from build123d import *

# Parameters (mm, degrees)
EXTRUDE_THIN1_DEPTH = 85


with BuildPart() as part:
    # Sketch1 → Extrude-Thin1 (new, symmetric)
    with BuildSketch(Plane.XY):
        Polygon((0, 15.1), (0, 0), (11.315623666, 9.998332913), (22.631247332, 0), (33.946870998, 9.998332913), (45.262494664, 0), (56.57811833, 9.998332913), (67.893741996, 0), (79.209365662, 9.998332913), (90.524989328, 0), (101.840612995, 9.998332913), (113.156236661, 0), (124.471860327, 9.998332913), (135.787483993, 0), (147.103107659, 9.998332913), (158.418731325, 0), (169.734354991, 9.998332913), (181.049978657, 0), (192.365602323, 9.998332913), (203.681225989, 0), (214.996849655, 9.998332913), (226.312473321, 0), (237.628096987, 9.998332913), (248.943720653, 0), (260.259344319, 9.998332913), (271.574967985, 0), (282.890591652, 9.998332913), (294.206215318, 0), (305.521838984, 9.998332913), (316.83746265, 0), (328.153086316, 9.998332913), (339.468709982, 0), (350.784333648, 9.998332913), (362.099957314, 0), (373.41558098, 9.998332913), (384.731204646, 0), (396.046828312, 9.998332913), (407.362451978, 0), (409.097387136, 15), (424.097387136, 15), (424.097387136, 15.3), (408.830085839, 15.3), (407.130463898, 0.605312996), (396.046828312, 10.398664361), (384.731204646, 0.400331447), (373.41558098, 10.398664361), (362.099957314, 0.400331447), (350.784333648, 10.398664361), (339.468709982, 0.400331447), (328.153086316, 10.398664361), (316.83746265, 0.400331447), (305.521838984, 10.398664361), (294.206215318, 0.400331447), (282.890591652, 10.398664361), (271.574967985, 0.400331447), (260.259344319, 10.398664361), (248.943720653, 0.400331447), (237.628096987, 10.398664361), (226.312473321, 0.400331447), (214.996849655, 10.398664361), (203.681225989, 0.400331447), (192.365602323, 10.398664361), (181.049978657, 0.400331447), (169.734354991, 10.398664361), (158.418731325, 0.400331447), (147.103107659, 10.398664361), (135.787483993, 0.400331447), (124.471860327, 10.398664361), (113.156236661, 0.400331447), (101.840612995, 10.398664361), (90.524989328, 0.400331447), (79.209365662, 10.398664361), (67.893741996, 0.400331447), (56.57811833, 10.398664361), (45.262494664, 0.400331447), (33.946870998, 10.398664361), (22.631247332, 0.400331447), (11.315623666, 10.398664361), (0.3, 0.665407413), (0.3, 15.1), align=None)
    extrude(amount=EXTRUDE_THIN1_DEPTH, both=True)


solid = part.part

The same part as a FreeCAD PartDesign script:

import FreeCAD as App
import Part
import Sketcher


def add_polygon(sketch, points):
    """Adds a closed chain of lines whose ends are joined by coincident constraints."""
    first, n = sketch.GeometryCount, len(points)
    for a, b in zip(points, points[1:] + points[:1]):
        sketch.addGeometry(Part.LineSegment(App.Vector(*a, 0), App.Vector(*b, 0)), False)
    for i in range(n):
        sketch.addConstraint(Sketcher.Constraint("Coincident", first + i, 2, first + (i + 1) % n, 1))

doc = App.newDocument("Part")
body = doc.addObject("PartDesign::Body", "Body")

sketch1 = doc.addObject("Sketcher::SketchObject", "Sketch")
body.addObject(sketch1)
sketch1.AttachmentSupport = (doc.XY_Plane, [""])
sketch1.MapMode = "FlatFace"
add_polygon(sketch1, [(0, 15.1), (0, 0), (11.32, 10), (22.63, 0), (33.95, 10), (45.26, 0), (56.58, 10), (67.89, 0), (79.21, 10), (90.52, 0), (101.84, 10), (113.16, 0), (124.47, 10), (135.79, 0), (147.1, 10), (158.42, 0), (169.73, 10), (181.05, 0), (192.37, 10), (203.68, 0), (215, 10), (226.31, 0), (237.63, 10), (248.94, 0), (260.26, 10), (271.57, 0), (282.89, 10), (294.21, 0), (305.52, 10), (316.84, 0), (328.15, 10), (339.47, 0), (350.78, 10), (362.1, 0), (373.42, 10), (384.73, 0), (396.05, 10), (407.36, 0), (409.1, 15), (424.1, 15), (424.1, 15.3), (408.83, 15.3), (407.13, 0.61), (396.05, 10.4), (384.73, 0.4), (373.42, 10.4), (362.1, 0.4), (350.78, 10.4), (339.47, 0.4), (328.15, 10.4), (316.84, 0.4), (305.52, 10.4), (294.21, 0.4), (282.89, 10.4), (271.57, 0.4), (260.26, 10.4), (248.94, 0.4), (237.63, 10.4), (226.31, 0.4), (215, 10.4), (203.68, 0.4), (192.37, 10.4), (181.05, 0.4), (169.73, 10.4), (158.42, 0.4), (147.1, 10.4), (135.79, 0.4), (124.47, 10.4), (113.16, 0.4), (101.84, 10.4), (90.52, 0.4), (79.21, 10.4), (67.89, 0.4), (56.58, 10.4), (45.26, 0.4), (33.95, 10.4), (22.63, 0.4), (11.32, 10.4), (0.3, 0.67), (0.3, 15.1)])
sketch1.addConstraint(Sketcher.Constraint("Vertical", 0))
sketch1.addConstraint(Sketcher.Constraint("Horizontal", 38))
sketch1.addConstraint(Sketcher.Constraint("Vertical", 39))
sketch1.addConstraint(Sketcher.Constraint("Horizontal", 40))
sketch1.addConstraint(Sketcher.Constraint("Vertical", 78))
sketch1.addConstraint(Sketcher.Constraint("Horizontal", 79))
sketch1.addConstraint(Sketcher.Constraint("Coincident", 0, 2, -1, 1))
sketch1.addConstraint(Sketcher.Constraint("PointOnObject", 2, 2, -1))
sketch1.addConstraint(Sketcher.Constraint("PointOnObject", 4, 2, -1))
sketch1.addConstraint(Sketcher.Constraint("PointOnObject", 6, 2, -1))
sketch1.addConstraint(Sketcher.Constraint("PointOnObject", 8, 2, -1))
sketch1.addConstraint(Sketcher.Constraint("PointOnObject", 10, 2, -1))
sketch1.addConstraint(Sketcher.Constraint("PointOnObject", 12, 2, -1))
sketch1.addConstraint(Sketcher.Constraint("PointOnObject", 14, 2, -1))
sketch1.addConstraint(Sketcher.Constraint("PointOnObject", 16, 2, -1))
sketch1.addConstraint(Sketcher.Constraint("PointOnObject", 18, 2, -1))
sketch1.addConstraint(Sketcher.Constraint("PointOnObject", 20, 2, -1))
sketch1.addConstraint(Sketcher.Constraint("PointOnObject", 22, 2, -1))
sketch1.addConstraint(Sketcher.Constraint("PointOnObject", 24, 2, -1))
sketch1.addConstraint(Sketcher.Constraint("PointOnObject", 26, 2, -1))
sketch1.addConstraint(Sketcher.Constraint("PointOnObject", 28, 2, -1))
sketch1.addConstraint(Sketcher.Constraint("PointOnObject", 30, 2, -1))
sketch1.addConstraint(Sketcher.Constraint("PointOnObject", 32, 2, -1))
sketch1.addConstraint(Sketcher.Constraint("PointOnObject", 34, 2, -1))
sketch1.addConstraint(Sketcher.Constraint("PointOnObject", 36, 2, -1))
sketch1.addConstraint(Sketcher.Constraint("Parallel", 1, 3))
sketch1.addConstraint(Sketcher.Constraint("Parallel", 2, 4))
sketch1.addConstraint(Sketcher.Constraint("Parallel", 3, 5))
sketch1.addConstraint(Sketcher.Constraint("Parallel", 4, 6))
sketch1.addConstraint(Sketcher.Constraint("Parallel", 5, 7))
sketch1.addConstraint(Sketcher.Constraint("Parallel", 6, 8))
sketch1.addConstraint(Sketcher.Constraint("Parallel", 7, 9))
sketch1.addConstraint(Sketcher.Constraint("Parallel", 8, 10))
sketch1.addConstraint(Sketcher.Constraint("Parallel", 9, 11))
sketch1.addConstraint(Sketcher.Constraint("Parallel", 10, 12))
sketch1.addConstraint(Sketcher.Constraint("Parallel", 11, 13))
sketch1.addConstraint(Sketcher.Constraint("Parallel", 12, 14))
sketch1.addConstraint(Sketcher.Constraint("Parallel", 13, 15))
sketch1.addConstraint(Sketcher.Constraint("Parallel", 14, 16))
sketch1.addConstraint(Sketcher.Constraint("Parallel", 15, 17))
sketch1.addConstraint(Sketcher.Constraint("Parallel", 16, 18))
sketch1.addConstraint(Sketcher.Constraint("Parallel", 17, 19))
sketch1.addConstraint(Sketcher.Constraint("Parallel", 18, 20))
sketch1.addConstraint(Sketcher.Constraint("Parallel", 19, 21))
sketch1.addConstraint(Sketcher.Constraint("Parallel", 20, 22))
sketch1.addConstraint(Sketcher.Constraint("Parallel", 21, 23))
sketch1.addConstraint(Sketcher.Constraint("Parallel", 22, 24))
sketch1.addConstraint(Sketcher.Constraint("Parallel", 23, 25))
sketch1.addConstraint(Sketcher.Constraint("Parallel", 24, 26))
sketch1.addConstraint(Sketcher.Constraint("Parallel", 25, 27))
sketch1.addConstraint(Sketcher.Constraint("Parallel", 26, 28))
sketch1.addConstraint(Sketcher.Constraint("Parallel", 27, 29))
sketch1.addConstraint(Sketcher.Constraint("Parallel", 28, 30))
sketch1.addConstraint(Sketcher.Constraint("Parallel", 29, 31))
sketch1.addConstraint(Sketcher.Constraint("Parallel", 30, 32))
sketch1.addConstraint(Sketcher.Constraint("Parallel", 31, 33))
sketch1.addConstraint(Sketcher.Constraint("Parallel", 32, 34))
sketch1.addConstraint(Sketcher.Constraint("Parallel", 33, 35))
sketch1.addConstraint(Sketcher.Constraint("Parallel", 34, 36))
sketch1.addConstraint(Sketcher.Constraint("Parallel", 37, 41))
sketch1.addConstraint(Sketcher.Constraint("Parallel", 36, 42))
sketch1.addConstraint(Sketcher.Constraint("Parallel", 35, 43))
sketch1.addConstraint(Sketcher.Constraint("Parallel", 42, 44))
sketch1.addConstraint(Sketcher.Constraint("Parallel", 43, 45))
sketch1.addConstraint(Sketcher.Constraint("Parallel", 44, 46))
sketch1.addConstraint(Sketcher.Constraint("Parallel", 45, 47))
sketch1.addConstraint(Sketcher.Constraint("Parallel", 46, 48))
sketch1.addConstraint(Sketcher.Constraint("Parallel", 47, 49))
sketch1.addConstraint(Sketcher.Constraint("Parallel", 48, 50))
sketch1.addConstraint(Sketcher.Constraint("Parallel", 49, 51))
sketch1.addConstraint(Sketcher.Constraint("Parallel", 50, 52))
sketch1.addConstraint(Sketcher.Constraint("Parallel", 51, 53))
sketch1.addConstraint(Sketcher.Constraint("Parallel", 52, 54))
sketch1.addConstraint(Sketcher.Constraint("Parallel", 53, 55))
sketch1.addConstraint(Sketcher.Constraint("Parallel", 54, 56))
sketch1.addConstraint(Sketcher.Constraint("Parallel", 55, 57))
sketch1.addConstraint(Sketcher.Constraint("Parallel", 56, 58))
sketch1.addConstraint(Sketcher.Constraint("Parallel", 57, 59))
sketch1.addConstraint(Sketcher.Constraint("Parallel", 58, 60))
sketch1.addConstraint(Sketcher.Constraint("Parallel", 59, 61))
sketch1.addConstraint(Sketcher.Constraint("Parallel", 60, 62))
sketch1.addConstraint(Sketcher.Constraint("Parallel", 61, 63))
sketch1.addConstraint(Sketcher.Constraint("Parallel", 62, 64))
sketch1.addConstraint(Sketcher.Constraint("Parallel", 63, 65))
sketch1.addConstraint(Sketcher.Constraint("Parallel", 64, 66))
sketch1.addConstraint(Sketcher.Constraint("Parallel", 65, 67))
sketch1.addConstraint(Sketcher.Constraint("Parallel", 66, 68))
sketch1.addConstraint(Sketcher.Constraint("Parallel", 67, 69))
sketch1.addConstraint(Sketcher.Constraint("Parallel", 68, 70))
sketch1.addConstraint(Sketcher.Constraint("Parallel", 69, 71))
sketch1.addConstraint(Sketcher.Constraint("Parallel", 70, 72))
sketch1.addConstraint(Sketcher.Constraint("Parallel", 71, 73))
sketch1.addConstraint(Sketcher.Constraint("Parallel", 72, 74))
sketch1.addConstraint(Sketcher.Constraint("Parallel", 73, 75))
sketch1.addConstraint(Sketcher.Constraint("Parallel", 74, 76))
sketch1.addConstraint(Sketcher.Constraint("Parallel", 75, 77))
sketch1.addConstraint(Sketcher.Constraint("Horizontal", 1, 2, 3, 2))
sketch1.addConstraint(Sketcher.Constraint("Horizontal", 3, 2, 5, 2))
sketch1.addConstraint(Sketcher.Constraint("Horizontal", 5, 2, 7, 2))
sketch1.addConstraint(Sketcher.Constraint("Horizontal", 7, 2, 9, 2))
sketch1.addConstraint(Sketcher.Constraint("Horizontal", 9, 2, 11, 2))
sketch1.addConstraint(Sketcher.Constraint("Horizontal", 11, 2, 13, 2))
sketch1.addConstraint(Sketcher.Constraint("Horizontal", 13, 2, 15, 2))
sketch1.addConstraint(Sketcher.Constraint("Horizontal", 15, 2, 17, 2))
sketch1.addConstraint(Sketcher.Constraint("Horizontal", 17, 2, 19, 2))
sketch1.addConstraint(Sketcher.Constraint("Horizontal", 19, 2, 21, 2))
sketch1.addConstraint(Sketcher.Constraint("Horizontal", 21, 2, 23, 2))
sketch1.addConstraint(Sketcher.Constraint("Horizontal", 23, 2, 25, 2))
sketch1.addConstraint(Sketcher.Constraint("Horizontal", 25, 2, 27, 2))
sketch1.addConstraint(Sketcher.Constraint("Horizontal", 27, 2, 29, 2))
sketch1.addConstraint(Sketcher.Constraint("Horizontal", 29, 2, 31, 2))
sketch1.addConstraint(Sketcher.Constraint("Horizontal", 31, 2, 33, 2))
sketch1.addConstraint(Sketcher.Constraint("Horizontal", 33, 2, 35, 2))
sketch1.addConstraint(Sketcher.Constraint("Horizontal", 42, 2, 44, 2))
sketch1.addConstraint(Sketcher.Constraint("Horizontal", 43, 2, 45, 2))
sketch1.addConstraint(Sketcher.Constraint("Horizontal", 44, 2, 46, 2))
sketch1.addConstraint(Sketcher.Constraint("Horizontal", 45, 2, 47, 2))
sketch1.addConstraint(Sketcher.Constraint("Horizontal", 46, 2, 48, 2))
sketch1.addConstraint(Sketcher.Constraint("Horizontal", 47, 2, 49, 2))
sketch1.addConstraint(Sketcher.Constraint("Horizontal", 48, 2, 50, 2))
sketch1.addConstraint(Sketcher.Constraint("Horizontal", 49, 2, 51, 2))
sketch1.addConstraint(Sketcher.Constraint("Horizontal", 50, 2, 52, 2))
sketch1.addConstraint(Sketcher.Constraint("Horizontal", 51, 2, 53, 2))
sketch1.addConstraint(Sketcher.Constraint("Horizontal", 52, 2, 54, 2))
sketch1.addConstraint(Sketcher.Constraint("Horizontal", 53, 2, 55, 2))
sketch1.addConstraint(Sketcher.Constraint("Horizontal", 54, 2, 56, 2))
sketch1.addConstraint(Sketcher.Constraint("Horizontal", 55, 2, 57, 2))
sketch1.addConstraint(Sketcher.Constraint("Horizontal", 56, 2, 58, 2))
sketch1.addConstraint(Sketcher.Constraint("Horizontal", 57, 2, 59, 2))
sketch1.addConstraint(Sketcher.Constraint("Horizontal", 58, 2, 60, 2))
sketch1.addConstraint(Sketcher.Constraint("Horizontal", 59, 2, 61, 2))
sketch1.addConstraint(Sketcher.Constraint("Horizontal", 60, 2, 62, 2))
sketch1.addConstraint(Sketcher.Constraint("Horizontal", 61, 2, 63, 2))
sketch1.addConstraint(Sketcher.Constraint("Horizontal", 62, 2, 64, 2))
sketch1.addConstraint(Sketcher.Constraint("Horizontal", 63, 2, 65, 2))
sketch1.addConstraint(Sketcher.Constraint("Horizontal", 64, 2, 66, 2))
sketch1.addConstraint(Sketcher.Constraint("Horizontal", 65, 2, 67, 2))
sketch1.addConstraint(Sketcher.Constraint("Horizontal", 66, 2, 68, 2))
sketch1.addConstraint(Sketcher.Constraint("Horizontal", 67, 2, 69, 2))
sketch1.addConstraint(Sketcher.Constraint("Horizontal", 68, 2, 70, 2))
sketch1.addConstraint(Sketcher.Constraint("Horizontal", 69, 2, 71, 2))
sketch1.addConstraint(Sketcher.Constraint("Horizontal", 70, 2, 72, 2))
sketch1.addConstraint(Sketcher.Constraint("Horizontal", 71, 2, 73, 2))
sketch1.addConstraint(Sketcher.Constraint("Horizontal", 72, 2, 74, 2))
sketch1.addConstraint(Sketcher.Constraint("Horizontal", 73, 2, 75, 2))
sketch1.addConstraint(Sketcher.Constraint("Horizontal", 74, 2, 76, 2))
sketch1.addConstraint(Sketcher.Constraint("Vertical", 35, 2, 42, 2))
sketch1.addConstraint(Sketcher.Constraint("Vertical", 34, 2, 43, 2))
sketch1.addConstraint(Sketcher.Constraint("Equal", 79, 39))
sketch1.addConstraint(Sketcher.Constraint("Equal", 1, 2))
sketch1.addConstraint(Sketcher.Constraint("Equal", 36, 37))
sketch1.addConstraint(Sketcher.Constraint("DistanceX", 38, 1, 38, 2, 15.0))
sketch1.addConstraint(Sketcher.Constraint("DistanceX", 79, 2, 79, 1, 0.3))
sketch1.addConstraint(Sketcher.Constraint("DistanceY", 0, 2, 0, 1, 15.1))
sketch1.addConstraint(Sketcher.Constraint("DistanceY", -1, 1, 37, 2, 15.0))
sketch1.addConstraint(Sketcher.Constraint("Distance", 1, 15.1))
sketch1.addConstraint(Sketcher.Constraint("DistanceX", 40, 2, 40, 1, 15.267301))
sketch1.addConstraint(Sketcher.Constraint("Distance", 41, 14.792652))
sketch1.addConstraint(Sketcher.Constraint("DistanceX", -1, 1, 3, 2, 33.946871))
pad1 = doc.addObject("PartDesign::Pad", "Pad")
body.addObject(pad1)
pad1.Profile = sketch1
pad1.Length = 170
pad1.Midplane = True

doc.recompute()
